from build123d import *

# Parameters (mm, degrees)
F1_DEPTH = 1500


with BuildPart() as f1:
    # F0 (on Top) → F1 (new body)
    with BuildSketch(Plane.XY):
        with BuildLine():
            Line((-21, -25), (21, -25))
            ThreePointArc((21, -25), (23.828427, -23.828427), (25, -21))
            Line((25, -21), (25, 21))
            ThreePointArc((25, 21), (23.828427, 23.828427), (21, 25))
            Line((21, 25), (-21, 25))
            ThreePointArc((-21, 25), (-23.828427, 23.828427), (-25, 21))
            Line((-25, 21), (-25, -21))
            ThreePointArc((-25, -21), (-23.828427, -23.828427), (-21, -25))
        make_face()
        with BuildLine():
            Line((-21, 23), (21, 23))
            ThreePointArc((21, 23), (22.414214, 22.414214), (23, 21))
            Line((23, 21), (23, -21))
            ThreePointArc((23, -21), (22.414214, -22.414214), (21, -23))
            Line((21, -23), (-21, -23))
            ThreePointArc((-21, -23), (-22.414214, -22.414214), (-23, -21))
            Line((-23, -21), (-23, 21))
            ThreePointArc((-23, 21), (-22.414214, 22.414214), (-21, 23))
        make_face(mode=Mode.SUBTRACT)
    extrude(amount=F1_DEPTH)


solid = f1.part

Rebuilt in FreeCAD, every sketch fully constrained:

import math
import FreeCAD as App
import Part
import Sketcher

V = App.Vector

doc = App.newDocument("Part")
body = doc.addObject("PartDesign::Body", "Body")

sketch1 = body.newObject("Sketcher::SketchObject", "Sketch")
sketch1.AttachmentSupport = (doc.getObject("XY_Plane"), [""])
sketch1.MapMode = "FlatFace"
sketch1.addGeometry([
    Part.LineSegment(V(-21, -25, 0), V(21, -25, 0)),
    Part.ArcOfCircle(Part.Circle(V(21, -21, 0), V(0, 0, 1), 4), math.radians(-89.999994), math.radians(-0.000006)),
    Part.LineSegment(V(25, -21, 0), V(25, 21, 0)),
    Part.ArcOfCircle(Part.Circle(V(21, 21, 0), V(0, 0, 1), 4), math.radians(0.000006), math.radians(89.999994)),
    Part.LineSegment(V(21, 25, 0), V(-21, 25, 0)),
    Part.ArcOfCircle(Part.Circle(V(-21, 21, 0), V(0, 0, 1), 4), math.radians(90.000006), math.radians(179.999994)),
    Part.LineSegment(V(-25, 21, 0), V(-25, -21, 0)),
    Part.ArcOfCircle(Part.Circle(V(-21, -21, 0), V(0, 0, 1), 4), math.radians(-179.999994), math.radians(-90.000006)),
    Part.ArcOfCircle(Part.Circle(V(-21.000001, 21.000001, 0), V(0, 0, 1), 1.999999), math.radians(89.999957), math.radians(180.000043)),
    Part.LineSegment(V(-21, 23, 0), V(21, 23, 0)),
    Part.ArcOfCircle(Part.Circle(V(21.000001, 21.000001, 0), V(0, 0, 1), 1.999999), math.radians(-0.000043), math.radians(90.000043)),
    Part.LineSegment(V(23, 21, 0), V(23, -21, 0)),
    Part.ArcOfCircle(Part.Circle(V(21.000001, -21.000001, 0), V(0, 0, 1), 1.999999), math.radians(-90.000043), math.radians(0.000043)),
    Part.LineSegment(V(21, -23, 0), V(-21, -23, 0)),
    Part.ArcOfCircle(Part.Circle(V(-21.000001, -21.000001, 0), V(0, 0, 1), 1.999999), math.radians(179.999957), math.radians(270.000043)),
    Part.LineSegment(V(-23, -21, 0), V(-23, 21, 0)),
], False)
sketch1.addConstraint([
    Sketcher.Constraint("Tangent", 0, 2, 1, 1),
    Sketcher.Constraint("Tangent", 1, 2, 2, 1),
    Sketcher.Constraint("Tangent", 2, 2, 3, 1),
    Sketcher.Constraint("Tangent", 3, 2, 4, 1),
    Sketcher.Constraint("Tangent", 4, 2, 5, 1),
    Sketcher.Constraint("Tangent", 5, 2, 6, 1),
    Sketcher.Constraint("Tangent", 6, 2, 7, 1),
    Sketcher.Constraint("Tangent", 7, 2, 0, 1),
    Sketcher.Constraint("Tangent", 8, 1, 9, 1),
    Sketcher.Constraint("Tangent", 9, 2, 10, 2),
    Sketcher.Constraint("Tangent", 10, 1, 11, 1),
    Sketcher.Constraint("Tangent", 11, 2, 12, 2),
    Sketcher.Constraint("Tangent", 12, 1, 13, 1),
    Sketcher.Constraint("Tangent", 13, 2, 14, 2),
    Sketcher.Constraint("Tangent", 14, 1, 15, 1),
    Sketcher.Constraint("Tangent", 15, 2, 8, 2),
    Sketcher.Constraint("Horizontal", 0),
    Sketcher.Constraint("Vertical", 2),
    Sketcher.Constraint("Horizontal", 4),
    Sketcher.Constraint("Vertical", 6),
    Sketcher.Constraint("Horizontal", 9),
    Sketcher.Constraint("Vertical", 11),
    Sketcher.Constraint("Horizontal", 13),
    Sketcher.Constraint("Vertical", 15),
    Sketcher.Constraint("Coincident", 8, 3, 5, 3),
    Sketcher.Constraint("Coincident", 10, 3, 3, 3),
    Sketcher.Constraint("Coincident", 12, 3, 1, 3),
    Sketcher.Constraint("Equal", 1, 3),
    Sketcher.Constraint("Equal", 3, 5),
    Sketcher.Constraint("Equal", 5, 7),
    Sketcher.Constraint("Equal", 12, 14),
    Sketcher.Constraint("Symmetric", 1, 3, 5, 3, -1, 1),
    Sketcher.Constraint("Equal", 13, 2),
    Sketcher.Constraint("Radius", 1, 4.0),
    Sketcher.Constraint("Radius", 8, 1.999999),
    Sketcher.Constraint("DistanceX", 0, 1, 0, 2, 42.0),
])
pad1 = body.newObject("PartDesign::Pad", "Pad")
pad1.Profile = sketch1
pad1.Length = 1500

doc.recompute()
